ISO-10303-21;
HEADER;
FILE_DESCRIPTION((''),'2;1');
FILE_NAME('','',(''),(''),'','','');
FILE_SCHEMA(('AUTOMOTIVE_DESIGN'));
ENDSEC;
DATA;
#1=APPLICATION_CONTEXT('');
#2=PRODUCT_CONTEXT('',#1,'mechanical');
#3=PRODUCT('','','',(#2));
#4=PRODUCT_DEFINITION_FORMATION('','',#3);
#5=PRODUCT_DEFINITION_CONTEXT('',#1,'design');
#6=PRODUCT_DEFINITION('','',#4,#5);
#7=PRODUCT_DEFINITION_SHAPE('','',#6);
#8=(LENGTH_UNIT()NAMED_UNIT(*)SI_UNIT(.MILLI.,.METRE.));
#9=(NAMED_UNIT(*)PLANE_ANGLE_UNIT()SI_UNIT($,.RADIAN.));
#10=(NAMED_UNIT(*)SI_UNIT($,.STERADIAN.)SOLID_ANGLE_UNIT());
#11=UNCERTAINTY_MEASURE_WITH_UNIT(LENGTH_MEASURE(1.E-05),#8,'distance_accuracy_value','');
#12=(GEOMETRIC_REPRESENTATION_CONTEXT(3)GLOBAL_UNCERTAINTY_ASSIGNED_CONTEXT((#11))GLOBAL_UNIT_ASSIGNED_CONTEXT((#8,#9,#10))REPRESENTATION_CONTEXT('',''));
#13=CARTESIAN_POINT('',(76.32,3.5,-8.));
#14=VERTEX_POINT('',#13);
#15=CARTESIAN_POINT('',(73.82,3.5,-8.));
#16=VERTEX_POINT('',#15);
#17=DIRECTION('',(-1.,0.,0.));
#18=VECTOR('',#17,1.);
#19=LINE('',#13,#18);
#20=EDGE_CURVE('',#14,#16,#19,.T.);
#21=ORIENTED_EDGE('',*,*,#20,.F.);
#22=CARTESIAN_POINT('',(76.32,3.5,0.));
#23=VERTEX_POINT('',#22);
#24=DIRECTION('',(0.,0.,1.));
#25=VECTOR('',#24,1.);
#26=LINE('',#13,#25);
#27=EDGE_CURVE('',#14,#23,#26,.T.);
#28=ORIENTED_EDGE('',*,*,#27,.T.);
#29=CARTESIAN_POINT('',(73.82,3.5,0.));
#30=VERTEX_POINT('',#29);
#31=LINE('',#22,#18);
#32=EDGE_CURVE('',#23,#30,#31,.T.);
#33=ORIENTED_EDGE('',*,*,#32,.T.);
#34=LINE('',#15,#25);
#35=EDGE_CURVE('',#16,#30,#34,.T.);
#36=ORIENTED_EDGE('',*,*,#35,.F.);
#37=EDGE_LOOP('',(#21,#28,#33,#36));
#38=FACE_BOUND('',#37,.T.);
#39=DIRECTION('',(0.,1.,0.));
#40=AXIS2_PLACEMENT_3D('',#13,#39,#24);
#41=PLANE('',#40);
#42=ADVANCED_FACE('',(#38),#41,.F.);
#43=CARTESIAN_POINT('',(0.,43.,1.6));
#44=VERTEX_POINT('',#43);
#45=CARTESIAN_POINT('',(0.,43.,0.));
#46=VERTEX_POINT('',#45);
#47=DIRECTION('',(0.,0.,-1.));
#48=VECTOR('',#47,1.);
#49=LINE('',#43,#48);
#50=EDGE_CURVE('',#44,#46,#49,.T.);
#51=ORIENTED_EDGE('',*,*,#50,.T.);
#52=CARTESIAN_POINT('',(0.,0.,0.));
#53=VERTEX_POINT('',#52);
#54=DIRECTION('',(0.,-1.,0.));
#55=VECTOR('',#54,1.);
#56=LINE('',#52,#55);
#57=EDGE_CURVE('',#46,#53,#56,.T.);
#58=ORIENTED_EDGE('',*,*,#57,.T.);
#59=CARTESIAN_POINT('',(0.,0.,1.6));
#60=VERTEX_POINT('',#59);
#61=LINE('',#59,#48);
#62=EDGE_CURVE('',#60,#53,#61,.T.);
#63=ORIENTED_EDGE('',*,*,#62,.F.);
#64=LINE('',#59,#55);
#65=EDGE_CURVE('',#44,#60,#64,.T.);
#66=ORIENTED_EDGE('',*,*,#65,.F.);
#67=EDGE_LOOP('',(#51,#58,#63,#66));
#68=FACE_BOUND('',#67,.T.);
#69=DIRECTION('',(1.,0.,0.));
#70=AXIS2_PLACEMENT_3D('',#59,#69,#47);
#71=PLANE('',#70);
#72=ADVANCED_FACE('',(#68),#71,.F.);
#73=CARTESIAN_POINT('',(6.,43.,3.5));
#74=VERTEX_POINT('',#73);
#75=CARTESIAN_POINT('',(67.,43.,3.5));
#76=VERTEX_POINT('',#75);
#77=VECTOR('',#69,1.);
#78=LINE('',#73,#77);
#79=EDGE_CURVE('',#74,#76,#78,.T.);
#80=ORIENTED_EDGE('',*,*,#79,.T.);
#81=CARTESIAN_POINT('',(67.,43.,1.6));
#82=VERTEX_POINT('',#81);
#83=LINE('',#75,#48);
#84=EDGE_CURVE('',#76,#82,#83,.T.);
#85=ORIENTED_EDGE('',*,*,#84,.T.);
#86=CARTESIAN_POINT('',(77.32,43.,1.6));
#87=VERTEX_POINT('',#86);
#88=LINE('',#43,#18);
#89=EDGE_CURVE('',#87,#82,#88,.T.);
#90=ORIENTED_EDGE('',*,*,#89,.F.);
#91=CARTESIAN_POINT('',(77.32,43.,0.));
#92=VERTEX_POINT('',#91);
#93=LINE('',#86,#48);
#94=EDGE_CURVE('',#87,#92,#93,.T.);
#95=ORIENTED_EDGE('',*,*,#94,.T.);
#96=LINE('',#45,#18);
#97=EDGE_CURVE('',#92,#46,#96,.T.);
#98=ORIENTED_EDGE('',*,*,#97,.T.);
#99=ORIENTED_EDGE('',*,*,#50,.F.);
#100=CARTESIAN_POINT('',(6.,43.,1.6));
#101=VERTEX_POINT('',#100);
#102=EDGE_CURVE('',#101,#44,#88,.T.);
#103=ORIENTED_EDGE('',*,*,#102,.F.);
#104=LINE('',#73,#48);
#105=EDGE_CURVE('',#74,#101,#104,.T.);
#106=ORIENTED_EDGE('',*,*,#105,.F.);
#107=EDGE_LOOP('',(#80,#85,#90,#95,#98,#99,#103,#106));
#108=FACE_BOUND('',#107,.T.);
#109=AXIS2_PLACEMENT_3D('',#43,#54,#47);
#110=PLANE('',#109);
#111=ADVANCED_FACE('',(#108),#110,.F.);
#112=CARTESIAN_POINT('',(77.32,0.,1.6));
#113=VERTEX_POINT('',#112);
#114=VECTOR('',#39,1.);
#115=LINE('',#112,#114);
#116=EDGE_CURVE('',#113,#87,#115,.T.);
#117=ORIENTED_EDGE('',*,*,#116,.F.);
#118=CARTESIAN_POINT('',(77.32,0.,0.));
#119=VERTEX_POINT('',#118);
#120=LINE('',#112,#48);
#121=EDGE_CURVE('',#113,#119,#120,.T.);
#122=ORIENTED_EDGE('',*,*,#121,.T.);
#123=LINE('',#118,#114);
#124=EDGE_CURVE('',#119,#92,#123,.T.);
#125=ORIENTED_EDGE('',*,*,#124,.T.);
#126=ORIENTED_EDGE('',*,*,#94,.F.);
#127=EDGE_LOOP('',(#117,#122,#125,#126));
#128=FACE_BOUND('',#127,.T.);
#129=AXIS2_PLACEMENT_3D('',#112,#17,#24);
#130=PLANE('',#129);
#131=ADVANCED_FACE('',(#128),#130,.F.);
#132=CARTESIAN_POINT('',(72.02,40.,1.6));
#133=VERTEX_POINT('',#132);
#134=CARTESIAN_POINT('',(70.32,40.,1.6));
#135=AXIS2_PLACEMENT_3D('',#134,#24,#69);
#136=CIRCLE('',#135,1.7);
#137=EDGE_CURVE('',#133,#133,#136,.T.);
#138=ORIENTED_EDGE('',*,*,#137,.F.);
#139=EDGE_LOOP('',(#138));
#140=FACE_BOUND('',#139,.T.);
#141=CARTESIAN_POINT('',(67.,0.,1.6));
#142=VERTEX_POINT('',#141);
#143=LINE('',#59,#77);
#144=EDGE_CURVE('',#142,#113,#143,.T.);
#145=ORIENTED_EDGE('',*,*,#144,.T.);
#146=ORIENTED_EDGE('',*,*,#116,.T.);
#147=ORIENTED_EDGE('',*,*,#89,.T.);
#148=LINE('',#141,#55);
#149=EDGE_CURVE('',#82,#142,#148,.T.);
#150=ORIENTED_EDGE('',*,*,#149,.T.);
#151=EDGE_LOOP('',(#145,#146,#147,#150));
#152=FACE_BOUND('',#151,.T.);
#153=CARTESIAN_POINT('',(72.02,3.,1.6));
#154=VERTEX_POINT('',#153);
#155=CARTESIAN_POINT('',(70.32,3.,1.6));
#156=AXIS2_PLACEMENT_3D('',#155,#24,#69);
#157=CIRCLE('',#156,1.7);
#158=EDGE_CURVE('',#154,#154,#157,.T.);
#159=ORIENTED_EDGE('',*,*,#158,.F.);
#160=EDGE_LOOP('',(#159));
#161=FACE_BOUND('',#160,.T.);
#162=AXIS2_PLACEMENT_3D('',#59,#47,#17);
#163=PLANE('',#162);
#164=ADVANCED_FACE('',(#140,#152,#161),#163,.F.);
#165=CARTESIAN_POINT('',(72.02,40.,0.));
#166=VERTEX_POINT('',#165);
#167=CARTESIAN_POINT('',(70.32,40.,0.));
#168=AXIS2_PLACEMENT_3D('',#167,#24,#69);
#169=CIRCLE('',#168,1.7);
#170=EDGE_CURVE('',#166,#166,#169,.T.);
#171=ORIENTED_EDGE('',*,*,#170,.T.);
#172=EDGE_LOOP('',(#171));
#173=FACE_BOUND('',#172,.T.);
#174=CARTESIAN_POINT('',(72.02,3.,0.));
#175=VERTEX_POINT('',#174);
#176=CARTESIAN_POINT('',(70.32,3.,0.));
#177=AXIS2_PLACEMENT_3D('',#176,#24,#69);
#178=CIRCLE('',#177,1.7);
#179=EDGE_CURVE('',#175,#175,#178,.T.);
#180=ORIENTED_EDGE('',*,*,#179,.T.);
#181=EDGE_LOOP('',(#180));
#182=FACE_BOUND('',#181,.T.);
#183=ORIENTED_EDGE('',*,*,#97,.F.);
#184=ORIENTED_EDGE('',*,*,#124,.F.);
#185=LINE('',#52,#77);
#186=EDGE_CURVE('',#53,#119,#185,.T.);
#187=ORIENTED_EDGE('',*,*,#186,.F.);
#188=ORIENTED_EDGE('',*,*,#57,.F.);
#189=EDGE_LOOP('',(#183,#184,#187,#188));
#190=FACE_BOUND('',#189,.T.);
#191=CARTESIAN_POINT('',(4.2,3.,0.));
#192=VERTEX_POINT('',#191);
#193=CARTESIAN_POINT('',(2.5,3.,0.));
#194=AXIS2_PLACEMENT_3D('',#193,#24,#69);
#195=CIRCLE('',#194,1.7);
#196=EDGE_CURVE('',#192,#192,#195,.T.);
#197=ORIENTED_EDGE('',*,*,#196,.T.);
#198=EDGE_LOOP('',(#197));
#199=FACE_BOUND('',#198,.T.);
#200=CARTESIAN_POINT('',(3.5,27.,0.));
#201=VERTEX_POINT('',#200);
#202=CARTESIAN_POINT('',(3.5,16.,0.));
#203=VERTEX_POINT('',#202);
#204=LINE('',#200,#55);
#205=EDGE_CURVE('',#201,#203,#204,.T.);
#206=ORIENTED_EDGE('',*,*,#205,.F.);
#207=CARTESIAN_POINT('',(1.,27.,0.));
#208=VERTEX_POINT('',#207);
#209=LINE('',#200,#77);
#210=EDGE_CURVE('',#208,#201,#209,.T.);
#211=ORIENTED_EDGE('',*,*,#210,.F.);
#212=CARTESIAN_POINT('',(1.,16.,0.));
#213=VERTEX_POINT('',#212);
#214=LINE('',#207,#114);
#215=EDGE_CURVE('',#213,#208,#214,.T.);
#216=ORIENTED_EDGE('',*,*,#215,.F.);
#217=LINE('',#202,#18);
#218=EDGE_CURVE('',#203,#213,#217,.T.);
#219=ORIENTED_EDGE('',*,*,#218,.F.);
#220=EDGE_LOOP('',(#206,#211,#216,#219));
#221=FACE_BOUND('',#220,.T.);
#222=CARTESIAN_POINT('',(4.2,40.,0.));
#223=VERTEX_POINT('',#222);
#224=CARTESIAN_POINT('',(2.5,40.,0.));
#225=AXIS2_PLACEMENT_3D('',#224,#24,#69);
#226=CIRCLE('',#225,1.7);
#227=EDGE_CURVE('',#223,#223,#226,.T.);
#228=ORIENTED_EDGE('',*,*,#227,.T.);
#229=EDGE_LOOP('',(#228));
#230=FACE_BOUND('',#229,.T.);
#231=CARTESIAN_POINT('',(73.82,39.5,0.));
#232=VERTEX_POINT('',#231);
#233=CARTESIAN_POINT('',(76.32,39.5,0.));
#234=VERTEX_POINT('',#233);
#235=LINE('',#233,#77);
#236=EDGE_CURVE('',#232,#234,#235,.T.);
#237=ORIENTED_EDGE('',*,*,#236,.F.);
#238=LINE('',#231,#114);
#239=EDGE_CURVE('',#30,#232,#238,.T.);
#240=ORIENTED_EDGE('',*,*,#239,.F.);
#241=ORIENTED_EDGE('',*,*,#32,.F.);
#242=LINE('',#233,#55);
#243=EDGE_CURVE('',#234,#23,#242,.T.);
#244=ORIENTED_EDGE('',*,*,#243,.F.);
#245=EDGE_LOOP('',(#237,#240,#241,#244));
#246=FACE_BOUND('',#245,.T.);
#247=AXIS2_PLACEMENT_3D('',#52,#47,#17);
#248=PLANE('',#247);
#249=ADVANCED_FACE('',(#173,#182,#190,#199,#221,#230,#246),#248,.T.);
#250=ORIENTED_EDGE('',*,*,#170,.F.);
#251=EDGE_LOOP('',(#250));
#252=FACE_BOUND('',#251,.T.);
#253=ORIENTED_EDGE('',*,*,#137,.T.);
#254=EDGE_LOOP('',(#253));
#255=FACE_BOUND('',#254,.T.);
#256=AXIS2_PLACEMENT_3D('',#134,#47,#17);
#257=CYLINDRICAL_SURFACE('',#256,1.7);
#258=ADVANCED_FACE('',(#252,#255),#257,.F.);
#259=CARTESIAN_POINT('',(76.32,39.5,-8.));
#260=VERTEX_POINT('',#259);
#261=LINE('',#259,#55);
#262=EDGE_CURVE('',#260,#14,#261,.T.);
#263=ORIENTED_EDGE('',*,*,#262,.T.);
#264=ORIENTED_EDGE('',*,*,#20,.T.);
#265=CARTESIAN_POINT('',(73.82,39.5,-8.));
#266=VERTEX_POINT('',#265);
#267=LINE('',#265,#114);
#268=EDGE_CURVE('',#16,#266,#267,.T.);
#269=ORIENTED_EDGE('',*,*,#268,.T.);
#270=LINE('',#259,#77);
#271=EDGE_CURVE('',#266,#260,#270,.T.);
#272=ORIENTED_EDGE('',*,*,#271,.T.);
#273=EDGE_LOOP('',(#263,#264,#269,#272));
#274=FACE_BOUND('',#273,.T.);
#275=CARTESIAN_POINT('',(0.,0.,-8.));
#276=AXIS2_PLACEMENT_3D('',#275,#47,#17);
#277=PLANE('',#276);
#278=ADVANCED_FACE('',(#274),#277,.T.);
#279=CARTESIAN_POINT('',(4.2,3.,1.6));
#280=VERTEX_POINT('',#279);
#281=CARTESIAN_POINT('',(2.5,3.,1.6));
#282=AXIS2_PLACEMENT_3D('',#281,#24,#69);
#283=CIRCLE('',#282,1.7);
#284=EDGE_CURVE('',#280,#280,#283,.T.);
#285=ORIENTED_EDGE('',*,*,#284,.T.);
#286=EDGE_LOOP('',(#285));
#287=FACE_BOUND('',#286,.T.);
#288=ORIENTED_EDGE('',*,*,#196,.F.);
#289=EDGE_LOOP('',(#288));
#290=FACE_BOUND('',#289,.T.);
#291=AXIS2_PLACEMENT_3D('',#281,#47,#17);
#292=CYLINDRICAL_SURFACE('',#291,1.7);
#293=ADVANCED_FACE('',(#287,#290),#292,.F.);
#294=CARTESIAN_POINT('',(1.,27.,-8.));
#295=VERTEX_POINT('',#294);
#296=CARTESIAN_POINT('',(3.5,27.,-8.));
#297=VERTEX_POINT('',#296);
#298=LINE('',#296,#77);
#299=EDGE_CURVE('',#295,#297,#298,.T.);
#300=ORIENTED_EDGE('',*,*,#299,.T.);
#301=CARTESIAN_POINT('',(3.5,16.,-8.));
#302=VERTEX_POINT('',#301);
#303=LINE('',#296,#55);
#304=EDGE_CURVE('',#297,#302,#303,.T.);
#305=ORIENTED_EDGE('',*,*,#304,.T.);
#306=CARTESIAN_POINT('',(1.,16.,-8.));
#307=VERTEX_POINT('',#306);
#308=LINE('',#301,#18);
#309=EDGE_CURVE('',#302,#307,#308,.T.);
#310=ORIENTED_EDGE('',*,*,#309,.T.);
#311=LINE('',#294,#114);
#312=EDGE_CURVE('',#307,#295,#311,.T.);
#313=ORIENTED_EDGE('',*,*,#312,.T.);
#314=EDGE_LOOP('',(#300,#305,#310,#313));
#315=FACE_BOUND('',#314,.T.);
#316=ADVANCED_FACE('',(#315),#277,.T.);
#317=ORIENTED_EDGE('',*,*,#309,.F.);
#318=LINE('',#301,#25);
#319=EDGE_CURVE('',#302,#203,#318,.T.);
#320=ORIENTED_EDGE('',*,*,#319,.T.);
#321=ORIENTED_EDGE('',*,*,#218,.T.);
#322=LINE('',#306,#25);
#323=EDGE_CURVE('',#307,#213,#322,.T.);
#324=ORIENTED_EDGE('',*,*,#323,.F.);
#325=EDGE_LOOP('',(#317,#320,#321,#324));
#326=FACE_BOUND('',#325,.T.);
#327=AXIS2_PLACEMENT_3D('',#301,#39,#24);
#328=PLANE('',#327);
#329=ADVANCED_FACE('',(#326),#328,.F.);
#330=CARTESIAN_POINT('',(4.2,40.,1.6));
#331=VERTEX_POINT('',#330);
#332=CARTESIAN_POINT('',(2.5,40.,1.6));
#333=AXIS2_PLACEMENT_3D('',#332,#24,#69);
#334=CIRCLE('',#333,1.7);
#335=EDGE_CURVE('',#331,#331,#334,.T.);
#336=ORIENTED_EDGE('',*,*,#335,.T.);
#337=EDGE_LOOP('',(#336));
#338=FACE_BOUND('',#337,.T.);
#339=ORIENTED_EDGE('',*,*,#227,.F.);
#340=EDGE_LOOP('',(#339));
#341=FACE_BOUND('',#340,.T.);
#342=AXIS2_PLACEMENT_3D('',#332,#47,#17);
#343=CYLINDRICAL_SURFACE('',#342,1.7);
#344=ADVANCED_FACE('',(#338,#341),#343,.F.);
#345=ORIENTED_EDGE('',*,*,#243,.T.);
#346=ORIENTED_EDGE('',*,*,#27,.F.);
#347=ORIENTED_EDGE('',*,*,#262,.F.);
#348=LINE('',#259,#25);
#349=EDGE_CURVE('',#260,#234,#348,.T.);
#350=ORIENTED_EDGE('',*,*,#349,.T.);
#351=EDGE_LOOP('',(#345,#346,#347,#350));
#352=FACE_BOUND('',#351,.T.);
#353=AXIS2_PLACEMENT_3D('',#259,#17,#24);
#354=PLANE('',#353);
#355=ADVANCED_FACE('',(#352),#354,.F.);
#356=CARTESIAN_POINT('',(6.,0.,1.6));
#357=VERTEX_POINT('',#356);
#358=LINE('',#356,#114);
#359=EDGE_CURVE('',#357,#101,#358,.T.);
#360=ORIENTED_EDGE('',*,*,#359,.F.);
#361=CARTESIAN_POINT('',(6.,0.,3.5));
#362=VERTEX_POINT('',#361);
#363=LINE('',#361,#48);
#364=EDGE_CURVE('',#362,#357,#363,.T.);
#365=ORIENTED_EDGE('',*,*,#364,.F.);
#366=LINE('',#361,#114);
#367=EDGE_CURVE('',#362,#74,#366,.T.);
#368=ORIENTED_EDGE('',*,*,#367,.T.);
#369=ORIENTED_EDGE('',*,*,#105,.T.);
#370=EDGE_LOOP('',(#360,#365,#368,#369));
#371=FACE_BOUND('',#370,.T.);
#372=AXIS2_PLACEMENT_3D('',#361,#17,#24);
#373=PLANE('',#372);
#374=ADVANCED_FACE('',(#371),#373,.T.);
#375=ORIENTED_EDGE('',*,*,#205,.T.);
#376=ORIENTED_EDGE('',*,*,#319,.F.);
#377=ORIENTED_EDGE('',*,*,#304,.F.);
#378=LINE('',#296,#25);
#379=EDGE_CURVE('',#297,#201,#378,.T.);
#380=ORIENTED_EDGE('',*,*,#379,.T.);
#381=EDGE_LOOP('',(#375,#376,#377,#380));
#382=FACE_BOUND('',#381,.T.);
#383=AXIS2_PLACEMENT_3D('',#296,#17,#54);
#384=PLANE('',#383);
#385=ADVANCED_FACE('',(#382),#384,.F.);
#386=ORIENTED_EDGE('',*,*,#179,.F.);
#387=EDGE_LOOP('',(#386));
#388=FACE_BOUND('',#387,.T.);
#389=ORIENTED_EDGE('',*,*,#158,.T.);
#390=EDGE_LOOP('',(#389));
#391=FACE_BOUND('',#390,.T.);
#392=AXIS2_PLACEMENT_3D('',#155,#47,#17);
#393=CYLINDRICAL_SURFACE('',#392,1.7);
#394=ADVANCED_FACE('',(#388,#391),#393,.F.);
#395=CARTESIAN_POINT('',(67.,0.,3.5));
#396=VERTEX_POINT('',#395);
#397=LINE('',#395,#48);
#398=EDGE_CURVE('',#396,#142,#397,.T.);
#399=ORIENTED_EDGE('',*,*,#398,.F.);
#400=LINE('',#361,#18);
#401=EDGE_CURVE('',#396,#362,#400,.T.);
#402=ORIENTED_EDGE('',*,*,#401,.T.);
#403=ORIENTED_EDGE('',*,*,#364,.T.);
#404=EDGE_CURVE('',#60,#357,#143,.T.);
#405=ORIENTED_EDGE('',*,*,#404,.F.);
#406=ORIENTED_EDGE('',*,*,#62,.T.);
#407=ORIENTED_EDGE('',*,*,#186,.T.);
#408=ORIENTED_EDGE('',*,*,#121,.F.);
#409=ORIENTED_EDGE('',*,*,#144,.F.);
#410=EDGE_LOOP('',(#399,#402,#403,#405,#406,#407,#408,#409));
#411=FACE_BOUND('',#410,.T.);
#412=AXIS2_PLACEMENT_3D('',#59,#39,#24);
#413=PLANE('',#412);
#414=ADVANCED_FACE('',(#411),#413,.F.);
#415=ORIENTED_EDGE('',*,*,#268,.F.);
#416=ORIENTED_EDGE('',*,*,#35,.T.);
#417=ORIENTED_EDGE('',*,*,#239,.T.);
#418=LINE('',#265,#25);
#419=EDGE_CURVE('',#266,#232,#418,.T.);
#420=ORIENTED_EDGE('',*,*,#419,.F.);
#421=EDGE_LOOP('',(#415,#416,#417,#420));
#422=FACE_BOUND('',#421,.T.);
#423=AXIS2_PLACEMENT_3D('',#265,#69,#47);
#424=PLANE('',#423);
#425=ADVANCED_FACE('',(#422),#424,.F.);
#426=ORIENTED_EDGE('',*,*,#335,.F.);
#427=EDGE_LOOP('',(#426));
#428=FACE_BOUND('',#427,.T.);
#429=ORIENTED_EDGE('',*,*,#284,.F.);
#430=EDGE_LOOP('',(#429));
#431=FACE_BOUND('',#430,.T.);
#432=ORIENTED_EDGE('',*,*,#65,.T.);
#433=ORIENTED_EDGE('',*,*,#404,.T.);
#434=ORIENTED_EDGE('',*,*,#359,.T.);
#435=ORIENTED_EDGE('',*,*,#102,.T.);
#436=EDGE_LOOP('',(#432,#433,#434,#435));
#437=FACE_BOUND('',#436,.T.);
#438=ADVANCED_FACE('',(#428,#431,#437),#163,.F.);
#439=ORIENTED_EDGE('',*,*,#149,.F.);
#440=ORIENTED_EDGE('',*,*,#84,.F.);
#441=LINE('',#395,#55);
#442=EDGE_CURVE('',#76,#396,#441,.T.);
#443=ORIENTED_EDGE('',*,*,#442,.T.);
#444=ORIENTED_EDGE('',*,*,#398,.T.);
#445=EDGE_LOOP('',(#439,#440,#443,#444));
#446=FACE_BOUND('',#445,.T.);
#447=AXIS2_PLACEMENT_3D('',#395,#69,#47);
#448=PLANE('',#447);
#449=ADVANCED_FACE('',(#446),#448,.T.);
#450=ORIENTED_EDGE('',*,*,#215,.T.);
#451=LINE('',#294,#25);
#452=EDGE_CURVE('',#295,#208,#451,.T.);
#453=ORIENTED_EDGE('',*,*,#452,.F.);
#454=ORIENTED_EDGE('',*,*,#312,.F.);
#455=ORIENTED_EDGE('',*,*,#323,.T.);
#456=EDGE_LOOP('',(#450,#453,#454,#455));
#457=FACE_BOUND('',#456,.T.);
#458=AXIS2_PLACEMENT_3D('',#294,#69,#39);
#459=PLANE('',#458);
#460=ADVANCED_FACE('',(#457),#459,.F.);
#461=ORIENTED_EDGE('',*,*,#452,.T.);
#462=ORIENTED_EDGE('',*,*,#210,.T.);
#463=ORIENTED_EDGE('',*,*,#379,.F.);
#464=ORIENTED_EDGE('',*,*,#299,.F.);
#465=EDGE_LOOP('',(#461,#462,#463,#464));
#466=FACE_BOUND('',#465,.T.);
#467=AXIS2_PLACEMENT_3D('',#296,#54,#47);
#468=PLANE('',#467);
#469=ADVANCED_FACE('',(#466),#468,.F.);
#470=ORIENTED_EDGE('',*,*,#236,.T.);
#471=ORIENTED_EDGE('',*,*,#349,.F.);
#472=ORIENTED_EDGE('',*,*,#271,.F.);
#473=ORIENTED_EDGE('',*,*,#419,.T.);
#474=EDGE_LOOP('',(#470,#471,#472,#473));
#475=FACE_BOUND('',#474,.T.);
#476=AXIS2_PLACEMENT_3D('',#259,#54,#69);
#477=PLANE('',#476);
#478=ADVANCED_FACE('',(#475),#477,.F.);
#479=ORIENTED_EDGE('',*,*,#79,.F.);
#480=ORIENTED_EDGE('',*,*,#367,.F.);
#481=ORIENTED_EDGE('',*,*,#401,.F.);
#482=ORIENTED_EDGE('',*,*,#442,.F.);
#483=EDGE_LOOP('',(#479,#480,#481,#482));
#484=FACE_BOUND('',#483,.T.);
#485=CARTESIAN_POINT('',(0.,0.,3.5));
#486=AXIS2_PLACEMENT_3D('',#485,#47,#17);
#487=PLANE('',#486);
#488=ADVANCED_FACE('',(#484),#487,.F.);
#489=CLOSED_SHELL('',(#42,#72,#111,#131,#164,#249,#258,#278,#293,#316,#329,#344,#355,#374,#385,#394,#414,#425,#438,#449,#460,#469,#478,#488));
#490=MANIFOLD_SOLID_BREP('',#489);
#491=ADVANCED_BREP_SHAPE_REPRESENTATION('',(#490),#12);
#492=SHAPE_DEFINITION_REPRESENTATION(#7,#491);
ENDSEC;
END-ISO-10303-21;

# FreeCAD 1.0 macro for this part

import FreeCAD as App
import Part
import Sketcher


def add_polygon(sketch, points):
    """Adds a closed chain of lines whose ends are joined by coincident constraints."""
    first, n = sketch.GeometryCount, len(points)
    for a, b in zip(points, points[1:] + points[:1]):
        sketch.addGeometry(Part.LineSegment(App.Vector(*a, 0), App.Vector(*b, 0)), False)
    for i in range(n):
        sketch.addConstraint(Sketcher.Constraint("Coincident", first + i, 2, first + (i + 1) % n, 1))

doc = App.newDocument("Part")
body = doc.addObject("PartDesign::Body", "Body")

# Sketch on XY plane
sketch1 = body.newObject("Sketcher::SketchObject", "Sketch")
sketch1.AttachmentSupport = (doc.getObject("XY_Plane"), [""])
sketch1.MapMode = "FlatFace"
add_polygon(sketch1, [(0, 43), (0, 0), (77.3, 0), (77.3, 43)])  # lines 0-3
sketch1.addGeometry(Part.Circle(App.Vector(2.5, 3, 0), App.Vector(0, 0, 1), 1.7), False)  # 4
sketch1.addGeometry(Part.Circle(App.Vector(70.3, 3, 0), App.Vector(0, 0, 1), 1.7), False)  # 5
sketch1.addGeometry(Part.Circle(App.Vector(2.5, 40, 0), App.Vector(0, 0, 1), 1.7), False)  # 6
sketch1.addGeometry(Part.Circle(App.Vector(70.3, 40, 0), App.Vector(0, 0, 1), 1.7), False)  # 7
sketch1.addConstraint([
    Sketcher.Constraint("Vertical", 0),
    Sketcher.Constraint("Horizontal", 1),
    Sketcher.Constraint("Vertical", 2),
    Sketcher.Constraint("Horizontal", 3),
    Sketcher.Constraint("Coincident", 0, 2, -1, 1),
    Sketcher.Constraint("Equal", 4, 5),
    Sketcher.Constraint("Equal", 5, 6),
    Sketcher.Constraint("Equal", 6, 7),
    Sketcher.Constraint("Horizontal", 4, 3, 5, 3),
    Sketcher.Constraint("Horizontal", 6, 3, 7, 3),
    Sketcher.Constraint("Vertical", 4, 3, 6, 3),
    Sketcher.Constraint("Vertical", 5, 3, 7, 3),
    Sketcher.Constraint("Diameter", 4, 3.4),
    Sketcher.Constraint("DistanceY", 0, 2, 0, 1, 43.0),
    Sketcher.Constraint("DistanceY", -1, 1, 4, 3, 3.0),
    Sketcher.Constraint("DistanceY", -1, 1, 6, 3, 40.0),
    Sketcher.Constraint("DistanceX", 5, 3, 1, 2, 7.0),
    Sketcher.Constraint("DistanceX", 1, 1, 1, 2, 77.32),
    Sketcher.Constraint("DistanceX", -1, 1, 4, 3, 2.5),
])
pad1 = body.newObject("PartDesign::Pad", "Pad")
pad1.Profile = sketch1
pad1.Length = 1.6

# Sketch on XY plane
sketch2 = body.newObject("Sketcher::SketchObject", "Sketch001")
sketch2.AttachmentSupport = (doc.getObject("XY_Plane"), [""])
sketch2.MapMode = "FlatFace"
add_polygon(sketch2, [(67, 43), (67, 0), (6, 0), (6, 43)])  # lines 0-3
sketch2.addConstraint([
    Sketcher.Constraint("Vertical", 0),
    Sketcher.Constraint("Horizontal", 1),
    Sketcher.Constraint("Vertical", 2),
    Sketcher.Constraint("Horizontal", 3),
    Sketcher.Constraint("PointOnObject", 0, 2, -1),
    Sketcher.Constraint("DistanceX", 1, 2, 1, 1, 61.0),
    Sketcher.Constraint("DistanceY", 0, 2, 0, 1, 43.0),
    Sketcher.Constraint("DistanceX", -1, 1, 0, 2, 67.0),
])
pad2 = body.newObject("PartDesign::Pad", "Pad001")
pad2.Profile = sketch2
pad2.Length = 3.5

# Sketch on XY plane
sketch3 = body.newObject("Sketcher::SketchObject", "Sketch002")
sketch3.AttachmentSupport = (doc.getObject("XY_Plane"), [""])
sketch3.MapMode = "FlatFace"
add_polygon(sketch3, [(76.3, 39.5), (76.3, 3.5), (73.8, 3.5), (73.8, 39.5)])  # lines 0-3
add_polygon(sketch3, [(3.5, 27), (3.5, 16), (1, 16), (1, 27)])  # lines 4-7
sketch3.addConstraint([
    Sketcher.Constraint("Vertical", 0),
    Sketcher.Constraint("Horizontal", 1),
    Sketcher.Constraint("Vertical", 2),
    Sketcher.Constraint("Horizontal", 3),
    Sketcher.Constraint("Vertical", 4),
    Sketcher.Constraint("Horizontal", 5),
    Sketcher.Constraint("Vertical", 6),
    Sketcher.Constraint("Horizontal", 7),
    Sketcher.Constraint("Equal", 3, 5),
    Sketcher.Constraint("DistanceY", 0, 2, 0, 1, 36.0),
    Sketcher.Constraint("DistanceY", 4, 2, 4, 1, 11.0),
    Sketcher.Constraint("DistanceX", 1, 2, 1, 1, 2.5),
    Sketcher.Constraint("DistanceY", -1, 1, 4, 2, 16.0),
    Sketcher.Constraint("DistanceX", -1, 1, 5, 2, 1.0),
    Sketcher.Constraint("DistanceY", -1, 1, 0, 2, 3.5),
    Sketcher.Constraint("DistanceX", -1, 1, 0, 2, 76.32),
])
pad3 = body.newObject("PartDesign::Pad", "Pad002")
pad3.Profile = sketch3
pad3.Length = 8
pad3.Reversed = True

doc.recompute()
